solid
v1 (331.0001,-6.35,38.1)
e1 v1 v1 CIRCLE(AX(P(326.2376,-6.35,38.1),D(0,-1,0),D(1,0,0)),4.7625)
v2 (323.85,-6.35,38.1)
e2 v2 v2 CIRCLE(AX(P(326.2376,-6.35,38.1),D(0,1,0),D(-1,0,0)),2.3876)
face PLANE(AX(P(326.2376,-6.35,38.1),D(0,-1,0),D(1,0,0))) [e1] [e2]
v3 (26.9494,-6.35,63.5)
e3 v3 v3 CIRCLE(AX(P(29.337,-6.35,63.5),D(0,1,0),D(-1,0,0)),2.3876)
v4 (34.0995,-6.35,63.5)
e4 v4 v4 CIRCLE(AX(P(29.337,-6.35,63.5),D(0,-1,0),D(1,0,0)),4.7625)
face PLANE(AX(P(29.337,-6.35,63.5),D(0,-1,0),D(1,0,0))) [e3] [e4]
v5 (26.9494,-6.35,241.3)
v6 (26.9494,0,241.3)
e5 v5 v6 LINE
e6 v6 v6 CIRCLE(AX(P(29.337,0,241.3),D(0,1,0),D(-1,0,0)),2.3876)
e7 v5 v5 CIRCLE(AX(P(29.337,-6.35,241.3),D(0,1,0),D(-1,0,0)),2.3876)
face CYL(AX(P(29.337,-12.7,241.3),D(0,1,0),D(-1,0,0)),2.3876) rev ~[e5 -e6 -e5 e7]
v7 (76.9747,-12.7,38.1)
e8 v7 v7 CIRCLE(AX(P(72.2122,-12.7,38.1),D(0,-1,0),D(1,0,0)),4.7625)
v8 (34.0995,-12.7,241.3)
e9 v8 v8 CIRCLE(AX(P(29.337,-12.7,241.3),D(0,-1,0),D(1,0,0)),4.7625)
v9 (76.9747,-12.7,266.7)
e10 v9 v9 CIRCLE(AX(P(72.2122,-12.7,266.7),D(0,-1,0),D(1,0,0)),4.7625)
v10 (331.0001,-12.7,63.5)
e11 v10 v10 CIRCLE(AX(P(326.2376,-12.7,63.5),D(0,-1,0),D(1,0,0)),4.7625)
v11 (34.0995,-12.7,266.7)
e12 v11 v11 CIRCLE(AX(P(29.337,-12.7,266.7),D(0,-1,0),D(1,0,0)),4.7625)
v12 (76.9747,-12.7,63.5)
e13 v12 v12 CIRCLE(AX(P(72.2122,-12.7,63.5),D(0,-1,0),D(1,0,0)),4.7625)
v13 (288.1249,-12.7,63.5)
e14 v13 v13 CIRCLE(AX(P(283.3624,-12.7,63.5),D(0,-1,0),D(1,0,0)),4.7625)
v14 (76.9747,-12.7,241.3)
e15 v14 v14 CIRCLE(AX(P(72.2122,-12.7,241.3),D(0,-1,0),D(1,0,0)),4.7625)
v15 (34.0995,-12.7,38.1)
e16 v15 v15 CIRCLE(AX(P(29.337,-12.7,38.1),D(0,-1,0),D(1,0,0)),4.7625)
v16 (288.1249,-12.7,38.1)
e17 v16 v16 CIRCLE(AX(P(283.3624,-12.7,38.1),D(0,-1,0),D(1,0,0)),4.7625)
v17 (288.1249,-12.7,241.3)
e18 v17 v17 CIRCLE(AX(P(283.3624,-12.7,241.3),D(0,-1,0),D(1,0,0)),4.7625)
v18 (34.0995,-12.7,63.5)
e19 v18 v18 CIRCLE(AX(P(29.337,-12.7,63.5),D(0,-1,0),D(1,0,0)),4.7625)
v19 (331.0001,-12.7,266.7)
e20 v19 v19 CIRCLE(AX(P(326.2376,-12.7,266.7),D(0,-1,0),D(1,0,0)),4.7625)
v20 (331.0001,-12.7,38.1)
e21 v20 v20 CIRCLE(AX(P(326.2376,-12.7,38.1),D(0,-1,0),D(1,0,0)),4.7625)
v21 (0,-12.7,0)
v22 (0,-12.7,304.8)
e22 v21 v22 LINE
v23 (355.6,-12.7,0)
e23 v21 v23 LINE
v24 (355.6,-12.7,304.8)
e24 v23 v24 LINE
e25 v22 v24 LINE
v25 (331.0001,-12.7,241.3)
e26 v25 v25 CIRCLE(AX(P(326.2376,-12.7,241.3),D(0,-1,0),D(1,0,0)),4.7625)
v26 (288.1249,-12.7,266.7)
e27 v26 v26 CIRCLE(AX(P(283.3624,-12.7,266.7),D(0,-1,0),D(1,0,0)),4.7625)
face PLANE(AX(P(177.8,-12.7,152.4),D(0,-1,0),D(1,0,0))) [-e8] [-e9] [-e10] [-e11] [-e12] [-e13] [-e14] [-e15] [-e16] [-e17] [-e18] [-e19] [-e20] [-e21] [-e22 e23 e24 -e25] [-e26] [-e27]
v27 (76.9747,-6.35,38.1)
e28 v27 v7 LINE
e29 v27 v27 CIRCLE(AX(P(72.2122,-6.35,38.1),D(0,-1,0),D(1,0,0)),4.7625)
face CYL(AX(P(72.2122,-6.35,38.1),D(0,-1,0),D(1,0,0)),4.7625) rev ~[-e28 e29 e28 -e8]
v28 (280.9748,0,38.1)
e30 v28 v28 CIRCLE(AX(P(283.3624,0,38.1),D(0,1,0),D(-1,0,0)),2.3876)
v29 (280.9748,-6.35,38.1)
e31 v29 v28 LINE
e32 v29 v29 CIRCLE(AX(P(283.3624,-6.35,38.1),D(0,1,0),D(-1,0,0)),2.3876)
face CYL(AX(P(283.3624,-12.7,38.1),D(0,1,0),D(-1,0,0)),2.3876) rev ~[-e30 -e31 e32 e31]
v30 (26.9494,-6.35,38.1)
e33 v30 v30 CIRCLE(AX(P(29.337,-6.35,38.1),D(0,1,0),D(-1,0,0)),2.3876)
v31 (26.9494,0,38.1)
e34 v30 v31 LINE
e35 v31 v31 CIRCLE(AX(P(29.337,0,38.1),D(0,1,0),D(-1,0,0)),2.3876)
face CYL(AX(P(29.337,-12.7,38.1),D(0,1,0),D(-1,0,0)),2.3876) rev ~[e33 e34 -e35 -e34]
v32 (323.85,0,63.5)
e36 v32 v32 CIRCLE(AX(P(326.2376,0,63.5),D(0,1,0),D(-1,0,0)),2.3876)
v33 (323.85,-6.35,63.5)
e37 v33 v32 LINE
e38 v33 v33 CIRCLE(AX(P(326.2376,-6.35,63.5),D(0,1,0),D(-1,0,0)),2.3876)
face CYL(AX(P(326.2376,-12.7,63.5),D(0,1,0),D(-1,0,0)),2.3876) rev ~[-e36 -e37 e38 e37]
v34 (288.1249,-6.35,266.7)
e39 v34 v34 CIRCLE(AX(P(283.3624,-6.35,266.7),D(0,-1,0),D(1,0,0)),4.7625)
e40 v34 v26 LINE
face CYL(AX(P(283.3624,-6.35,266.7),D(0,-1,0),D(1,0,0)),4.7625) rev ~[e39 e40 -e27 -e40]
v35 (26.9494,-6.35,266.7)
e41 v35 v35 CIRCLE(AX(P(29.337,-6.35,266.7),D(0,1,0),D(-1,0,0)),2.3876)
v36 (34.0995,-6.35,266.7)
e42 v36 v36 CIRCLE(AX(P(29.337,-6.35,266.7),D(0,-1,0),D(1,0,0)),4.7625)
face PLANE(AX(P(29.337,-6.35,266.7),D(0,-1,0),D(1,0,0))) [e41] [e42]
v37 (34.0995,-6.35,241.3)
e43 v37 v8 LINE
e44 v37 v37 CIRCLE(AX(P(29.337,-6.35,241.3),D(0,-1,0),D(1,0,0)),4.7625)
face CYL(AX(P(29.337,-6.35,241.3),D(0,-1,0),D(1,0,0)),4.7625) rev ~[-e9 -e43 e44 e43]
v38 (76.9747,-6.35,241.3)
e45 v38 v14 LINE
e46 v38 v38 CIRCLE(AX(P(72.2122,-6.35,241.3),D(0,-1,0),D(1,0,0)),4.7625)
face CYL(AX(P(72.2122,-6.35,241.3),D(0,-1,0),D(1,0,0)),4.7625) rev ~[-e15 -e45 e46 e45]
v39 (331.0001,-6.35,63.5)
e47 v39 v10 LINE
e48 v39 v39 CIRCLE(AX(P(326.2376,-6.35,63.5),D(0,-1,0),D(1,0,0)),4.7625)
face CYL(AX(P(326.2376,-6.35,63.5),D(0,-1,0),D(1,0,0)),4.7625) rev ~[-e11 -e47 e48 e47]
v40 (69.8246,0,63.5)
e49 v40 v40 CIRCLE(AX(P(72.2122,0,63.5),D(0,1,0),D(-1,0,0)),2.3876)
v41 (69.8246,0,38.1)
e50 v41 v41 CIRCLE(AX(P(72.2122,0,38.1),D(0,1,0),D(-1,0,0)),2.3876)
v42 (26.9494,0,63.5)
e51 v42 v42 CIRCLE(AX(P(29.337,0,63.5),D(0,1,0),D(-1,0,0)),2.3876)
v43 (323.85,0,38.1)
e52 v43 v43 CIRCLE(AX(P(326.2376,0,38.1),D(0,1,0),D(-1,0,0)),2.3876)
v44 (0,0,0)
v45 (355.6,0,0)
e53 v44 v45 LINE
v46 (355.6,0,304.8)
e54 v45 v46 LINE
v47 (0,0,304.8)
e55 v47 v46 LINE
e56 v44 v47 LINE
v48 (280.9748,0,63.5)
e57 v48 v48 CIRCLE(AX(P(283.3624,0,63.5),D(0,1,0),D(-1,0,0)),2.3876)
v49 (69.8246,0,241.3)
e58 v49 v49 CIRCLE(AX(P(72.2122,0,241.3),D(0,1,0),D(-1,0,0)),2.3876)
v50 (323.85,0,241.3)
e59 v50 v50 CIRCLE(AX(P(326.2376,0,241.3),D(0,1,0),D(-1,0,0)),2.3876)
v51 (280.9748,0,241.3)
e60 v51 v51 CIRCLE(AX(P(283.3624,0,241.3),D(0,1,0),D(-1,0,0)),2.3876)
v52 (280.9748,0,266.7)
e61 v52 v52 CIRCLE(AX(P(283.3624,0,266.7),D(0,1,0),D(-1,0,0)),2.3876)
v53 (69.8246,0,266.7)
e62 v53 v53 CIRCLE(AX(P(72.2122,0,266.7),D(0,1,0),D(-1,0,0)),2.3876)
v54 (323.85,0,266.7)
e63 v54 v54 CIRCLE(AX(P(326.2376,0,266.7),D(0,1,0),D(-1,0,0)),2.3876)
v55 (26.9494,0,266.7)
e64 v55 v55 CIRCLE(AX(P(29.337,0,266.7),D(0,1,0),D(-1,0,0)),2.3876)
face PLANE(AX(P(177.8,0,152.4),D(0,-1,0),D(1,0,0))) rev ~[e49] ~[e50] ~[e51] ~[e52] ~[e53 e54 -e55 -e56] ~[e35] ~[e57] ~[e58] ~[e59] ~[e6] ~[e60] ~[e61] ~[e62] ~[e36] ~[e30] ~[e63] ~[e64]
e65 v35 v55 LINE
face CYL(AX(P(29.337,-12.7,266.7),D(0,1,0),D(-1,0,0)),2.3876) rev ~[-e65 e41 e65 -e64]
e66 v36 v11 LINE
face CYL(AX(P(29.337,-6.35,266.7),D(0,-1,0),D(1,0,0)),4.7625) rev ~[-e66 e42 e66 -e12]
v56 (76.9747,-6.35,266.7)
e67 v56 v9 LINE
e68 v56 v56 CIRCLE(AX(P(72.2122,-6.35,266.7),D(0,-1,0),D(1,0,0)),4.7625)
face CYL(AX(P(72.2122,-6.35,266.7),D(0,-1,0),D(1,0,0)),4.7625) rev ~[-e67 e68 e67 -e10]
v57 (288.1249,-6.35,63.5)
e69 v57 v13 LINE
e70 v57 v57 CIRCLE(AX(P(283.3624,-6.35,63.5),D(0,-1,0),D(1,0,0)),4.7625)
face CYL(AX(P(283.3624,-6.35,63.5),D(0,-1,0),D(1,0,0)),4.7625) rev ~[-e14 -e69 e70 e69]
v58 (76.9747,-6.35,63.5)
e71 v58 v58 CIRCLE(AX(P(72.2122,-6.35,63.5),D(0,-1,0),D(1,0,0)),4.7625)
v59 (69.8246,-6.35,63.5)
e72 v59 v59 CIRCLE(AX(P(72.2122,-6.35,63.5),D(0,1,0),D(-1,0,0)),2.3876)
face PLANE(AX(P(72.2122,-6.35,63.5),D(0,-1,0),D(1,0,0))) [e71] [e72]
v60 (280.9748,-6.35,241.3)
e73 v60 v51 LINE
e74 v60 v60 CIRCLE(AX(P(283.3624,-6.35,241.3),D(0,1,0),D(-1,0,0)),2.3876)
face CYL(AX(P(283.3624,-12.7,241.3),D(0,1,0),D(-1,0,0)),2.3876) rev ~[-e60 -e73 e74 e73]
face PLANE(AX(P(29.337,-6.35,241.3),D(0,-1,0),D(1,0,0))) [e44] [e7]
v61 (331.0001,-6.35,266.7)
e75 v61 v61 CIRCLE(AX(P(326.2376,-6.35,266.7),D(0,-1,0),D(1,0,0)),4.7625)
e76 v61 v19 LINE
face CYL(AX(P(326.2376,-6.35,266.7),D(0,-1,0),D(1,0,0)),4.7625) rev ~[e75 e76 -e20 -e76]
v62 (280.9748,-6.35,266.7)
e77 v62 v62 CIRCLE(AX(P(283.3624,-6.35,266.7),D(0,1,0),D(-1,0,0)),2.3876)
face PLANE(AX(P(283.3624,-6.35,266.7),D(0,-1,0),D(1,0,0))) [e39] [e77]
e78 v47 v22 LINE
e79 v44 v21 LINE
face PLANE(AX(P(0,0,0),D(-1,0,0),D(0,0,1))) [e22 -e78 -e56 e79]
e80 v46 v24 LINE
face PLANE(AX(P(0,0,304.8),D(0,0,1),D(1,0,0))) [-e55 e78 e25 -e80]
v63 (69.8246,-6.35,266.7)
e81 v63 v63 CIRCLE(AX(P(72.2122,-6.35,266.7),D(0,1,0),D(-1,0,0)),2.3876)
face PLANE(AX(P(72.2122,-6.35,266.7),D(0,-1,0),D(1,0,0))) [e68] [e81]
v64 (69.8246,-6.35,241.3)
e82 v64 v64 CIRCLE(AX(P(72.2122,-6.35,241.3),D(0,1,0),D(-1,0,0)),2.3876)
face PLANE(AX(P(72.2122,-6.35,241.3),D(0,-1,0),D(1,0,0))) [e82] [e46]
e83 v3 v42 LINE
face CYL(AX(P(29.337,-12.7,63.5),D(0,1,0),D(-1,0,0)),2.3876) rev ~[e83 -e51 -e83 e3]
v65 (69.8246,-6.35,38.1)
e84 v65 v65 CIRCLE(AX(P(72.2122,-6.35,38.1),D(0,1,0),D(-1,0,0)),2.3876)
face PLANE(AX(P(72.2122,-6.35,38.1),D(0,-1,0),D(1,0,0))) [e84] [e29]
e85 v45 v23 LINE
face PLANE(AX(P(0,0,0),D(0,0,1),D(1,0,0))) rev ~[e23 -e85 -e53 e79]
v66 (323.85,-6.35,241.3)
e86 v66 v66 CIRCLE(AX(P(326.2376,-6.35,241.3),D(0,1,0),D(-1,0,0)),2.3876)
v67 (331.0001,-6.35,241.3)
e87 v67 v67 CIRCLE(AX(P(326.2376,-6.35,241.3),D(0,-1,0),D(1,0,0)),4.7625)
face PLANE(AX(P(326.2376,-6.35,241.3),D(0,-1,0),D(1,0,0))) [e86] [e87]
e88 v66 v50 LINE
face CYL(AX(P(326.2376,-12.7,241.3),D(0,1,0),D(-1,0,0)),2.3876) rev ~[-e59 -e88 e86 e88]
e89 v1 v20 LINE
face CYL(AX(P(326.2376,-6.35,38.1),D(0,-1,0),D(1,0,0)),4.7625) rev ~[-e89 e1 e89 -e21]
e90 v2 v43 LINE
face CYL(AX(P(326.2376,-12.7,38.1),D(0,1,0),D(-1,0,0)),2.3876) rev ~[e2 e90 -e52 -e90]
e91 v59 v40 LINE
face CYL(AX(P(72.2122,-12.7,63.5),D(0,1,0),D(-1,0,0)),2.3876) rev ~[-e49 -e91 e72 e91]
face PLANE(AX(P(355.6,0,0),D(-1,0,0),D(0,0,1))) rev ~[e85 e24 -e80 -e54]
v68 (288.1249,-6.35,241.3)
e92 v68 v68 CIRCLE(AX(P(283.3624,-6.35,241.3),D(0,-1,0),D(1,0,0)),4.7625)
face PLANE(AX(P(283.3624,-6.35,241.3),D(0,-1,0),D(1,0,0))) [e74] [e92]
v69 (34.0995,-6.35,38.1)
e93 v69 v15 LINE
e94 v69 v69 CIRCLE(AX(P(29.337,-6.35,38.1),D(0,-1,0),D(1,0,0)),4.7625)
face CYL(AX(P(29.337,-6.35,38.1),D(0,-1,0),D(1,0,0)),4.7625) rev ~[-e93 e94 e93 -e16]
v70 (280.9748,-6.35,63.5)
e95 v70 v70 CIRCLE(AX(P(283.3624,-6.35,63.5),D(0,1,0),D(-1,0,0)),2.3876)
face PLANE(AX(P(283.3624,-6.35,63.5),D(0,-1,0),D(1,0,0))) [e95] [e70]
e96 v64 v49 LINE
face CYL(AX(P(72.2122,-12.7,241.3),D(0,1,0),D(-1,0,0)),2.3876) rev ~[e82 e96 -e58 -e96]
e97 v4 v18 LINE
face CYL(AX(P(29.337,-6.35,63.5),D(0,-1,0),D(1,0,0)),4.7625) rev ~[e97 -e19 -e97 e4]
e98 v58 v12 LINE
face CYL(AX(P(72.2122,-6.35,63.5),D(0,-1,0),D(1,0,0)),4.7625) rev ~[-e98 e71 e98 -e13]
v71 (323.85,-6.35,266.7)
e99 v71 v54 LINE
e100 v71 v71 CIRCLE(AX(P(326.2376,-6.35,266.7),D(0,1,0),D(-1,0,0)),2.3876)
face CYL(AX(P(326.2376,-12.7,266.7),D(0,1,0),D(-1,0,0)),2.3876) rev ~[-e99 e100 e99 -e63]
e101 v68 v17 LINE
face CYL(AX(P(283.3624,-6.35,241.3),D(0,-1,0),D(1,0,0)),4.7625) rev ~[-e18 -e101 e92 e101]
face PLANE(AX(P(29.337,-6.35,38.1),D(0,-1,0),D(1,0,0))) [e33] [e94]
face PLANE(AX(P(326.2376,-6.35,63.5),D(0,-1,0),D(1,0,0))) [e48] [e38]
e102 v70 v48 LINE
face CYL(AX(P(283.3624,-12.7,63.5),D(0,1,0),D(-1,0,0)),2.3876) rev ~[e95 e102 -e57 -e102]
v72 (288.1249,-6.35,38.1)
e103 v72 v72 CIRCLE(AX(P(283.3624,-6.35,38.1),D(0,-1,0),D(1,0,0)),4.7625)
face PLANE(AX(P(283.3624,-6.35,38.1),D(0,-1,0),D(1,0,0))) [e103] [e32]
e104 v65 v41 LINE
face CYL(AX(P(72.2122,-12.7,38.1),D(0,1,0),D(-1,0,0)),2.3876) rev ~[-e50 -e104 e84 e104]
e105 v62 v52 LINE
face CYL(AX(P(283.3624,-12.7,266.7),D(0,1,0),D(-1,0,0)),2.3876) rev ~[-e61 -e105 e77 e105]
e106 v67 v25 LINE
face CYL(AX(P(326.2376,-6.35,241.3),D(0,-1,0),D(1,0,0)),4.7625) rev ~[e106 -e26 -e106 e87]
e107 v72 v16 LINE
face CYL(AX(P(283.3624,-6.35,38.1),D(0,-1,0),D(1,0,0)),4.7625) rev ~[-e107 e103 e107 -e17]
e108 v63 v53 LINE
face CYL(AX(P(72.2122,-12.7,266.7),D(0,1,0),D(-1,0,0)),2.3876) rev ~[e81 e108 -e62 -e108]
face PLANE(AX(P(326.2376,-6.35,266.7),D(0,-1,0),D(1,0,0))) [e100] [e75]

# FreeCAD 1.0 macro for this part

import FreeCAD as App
import Part
import Sketcher
Q = App.Units.Quantity


def add_polygon(sketch, points):
    """Adds a closed chain of lines whose ends are joined by coincident constraints."""
    first, n = sketch.GeometryCount, len(points)
    for a, b in zip(points, points[1:] + points[:1]):
        sketch.addGeometry(Part.LineSegment(App.Vector(*a, 0), App.Vector(*b, 0)), False)
    for i in range(n):
        sketch.addConstraint(Sketcher.Constraint("Coincident", first + i, 2, first + (i + 1) % n, 1))

doc = App.newDocument("Part")
body = doc.addObject("PartDesign::Body", "Body")

sketch1 = body.newObject("Sketcher::SketchObject", "Sketch")
sketch1.AttachmentSupport = (doc.getObject("XZ_Plane"), [""])
sketch1.MapMode = "FlatFace"
add_polygon(sketch1, [(0, 304.8), (0, 0), (355.6, 0), (355.6, 304.8)])
sketch1.addConstraint(Sketcher.Constraint("Vertical", 0))
sketch1.addConstraint(Sketcher.Constraint("Horizontal", 1))
sketch1.addConstraint(Sketcher.Constraint("Vertical", 2))
sketch1.addConstraint(Sketcher.Constraint("Horizontal", 3))
sketch1.addConstraint(Sketcher.Constraint("Coincident", 0, 2, -1, 1))
sketch1.addConstraint(Sketcher.Constraint("DistanceX", 1, 1, 1, 2, Q("14 in")))
sketch1.addConstraint(Sketcher.Constraint("DistanceY", 0, 2, 0, 1, Q("12 in")))
pad1 = body.newObject("PartDesign::Pad", "Pad")
pad1.Profile = sketch1
pad1.Length = Q("0.5 in")

sketch2 = body.newObject("Sketcher::SketchObject", "Sketch001")
sketch2.AttachmentSupport = (doc.getObject("XZ_Plane"), [""])
sketch2.MapMode = "FlatFace"
sketch2.AttachmentOffset = App.Placement(App.Vector(0, 0, 0.5 * 25.4), App.Rotation())
sketch2.addGeometry(Part.Circle(App.Vector(72.2122, 266.7, 0), App.Vector(0, 0, 1), 2.3876), False)
sketch2.addGeometry(Part.Circle(App.Vector(72.2122, 241.3, 0), App.Vector(0, 0, 1), 2.3876), False)
sketch2.addGeometry(Part.Circle(App.Vector(29.337, 241.3, 0), App.Vector(0, 0, 1), 2.3876), False)
sketch2.addGeometry(Part.Circle(App.Vector(283.3624, 266.7, 0), App.Vector(0, 0, 1), 2.3876), False)
sketch2.addGeometry(Part.Circle(App.Vector(283.3624, 241.3, 0), App.Vector(0, 0, 1), 2.3876), False)
sketch2.addGeometry(Part.Circle(App.Vector(326.2376, 241.3, 0), App.Vector(0, 0, 1), 2.3876), False)
sketch2.addGeometry(Part.Circle(App.Vector(326.2376, 266.7, 0), App.Vector(0, 0, 1), 2.3876), False)
sketch2.addGeometry(Part.Circle(App.Vector(283.3624, 63.5, 0), App.Vector(0, 0, 1), 2.3876), False)
sketch2.addGeometry(Part.Circle(App.Vector(326.2376, 38.1, 0), App.Vector(0, 0, 1), 2.3876), False)
sketch2.addGeometry(Part.Circle(App.Vector(326.2376, 63.5, 0), App.Vector(0, 0, 1), 2.3876), False)
sketch2.addGeometry(Part.Circle(App.Vector(283.3624, 38.1, 0), App.Vector(0, 0, 1), 2.3876), False)
sketch2.addGeometry(Part.Circle(App.Vector(72.2122, 63.5, 0), App.Vector(0, 0, 1), 2.3876), False)
sketch2.addGeometry(Part.Circle(App.Vector(72.2122, 38.1, 0), App.Vector(0, 0, 1), 2.3876), False)
sketch2.addGeometry(Part.Circle(App.Vector(29.337, 38.1, 0), App.Vector(0, 0, 1), 2.3876), False)
sketch2.addGeometry(Part.Circle(App.Vector(29.337, 63.5, 0), App.Vector(0, 0, 1), 2.3876), False)
sketch2.addGeometry(Part.Circle(App.Vector(29.337, 266.7, 0), App.Vector(0, 0, 1), 2.3876), False)
sketch2.addConstraint(Sketcher.Constraint("Equal", 0, 1))
sketch2.addConstraint(Sketcher.Constraint("Equal", 1, 2))
sketch2.addConstraint(Sketcher.Constraint("Equal", 2, 3))
sketch2.addConstraint(Sketcher.Constraint("Equal", 3, 4))
sketch2.addConstraint(Sketcher.Constraint("Equal", 4, 5))
sketch2.addConstraint(Sketcher.Constraint("Equal", 5, 6))
sketch2.addConstraint(Sketcher.Constraint("Equal", 6, 7))
sketch2.addConstraint(Sketcher.Constraint("Equal", 7, 8))
sketch2.addConstraint(Sketcher.Constraint("Equal", 8, 9))
sketch2.addConstraint(Sketcher.Constraint("Equal", 9, 10))
sketch2.addConstraint(Sketcher.Constraint("Equal", 10, 11))
sketch2.addConstraint(Sketcher.Constraint("Equal", 11, 12))
sketch2.addConstraint(Sketcher.Constraint("Equal", 12, 13))
sketch2.addConstraint(Sketcher.Constraint("Equal", 13, 14))
sketch2.addConstraint(Sketcher.Constraint("Equal", 14, 15))
sketch2.addConstraint(Sketcher.Constraint("Horizontal", 1, 3, 2, 3))
sketch2.addConstraint(Sketcher.Constraint("Horizontal", 0, 3, 3, 3))
sketch2.addConstraint(Sketcher.Constraint("Horizontal", 2, 3, 4, 3))
sketch2.addConstraint(Sketcher.Constraint("Horizontal", 4, 3, 5, 3))
sketch2.addConstraint(Sketcher.Constraint("Horizontal", 3, 3, 6, 3))
sketch2.addConstraint(Sketcher.Constraint("Horizontal", 7, 3, 9, 3))
sketch2.addConstraint(Sketcher.Constraint("Horizontal", 8, 3, 10, 3))
sketch2.addConstraint(Sketcher.Constraint("Horizontal", 9, 3, 11, 3))
sketch2.addConstraint(Sketcher.Constraint("Horizontal", 10, 3, 12, 3))
sketch2.addConstraint(Sketcher.Constraint("Horizontal", 12, 3, 13, 3))
sketch2.addConstraint(Sketcher.Constraint("Horizontal", 11, 3, 14, 3))
sketch2.addConstraint(Sketcher.Constraint("Horizontal", 6, 3, 15, 3))
sketch2.addConstraint(Sketcher.Constraint("Vertical", 0, 3, 1, 3))
sketch2.addConstraint(Sketcher.Constraint("Vertical", 3, 3, 4, 3))
sketch2.addConstraint(Sketcher.Constraint("Vertical", 5, 3, 6, 3))
sketch2.addConstraint(Sketcher.Constraint("Vertical", 4, 3, 7, 3))
sketch2.addConstraint(Sketcher.Constraint("Vertical", 6, 3, 8, 3))
sketch2.addConstraint(Sketcher.Constraint("Vertical", 8, 3, 9, 3))
sketch2.addConstraint(Sketcher.Constraint("Vertical", 7, 3, 10, 3))
sketch2.addConstraint(Sketcher.Constraint("Vertical", 1, 3, 11, 3))
sketch2.addConstraint(Sketcher.Constraint("Vertical", 11, 3, 12, 3))
sketch2.addConstraint(Sketcher.Constraint("Vertical", 2, 3, 13, 3))
sketch2.addConstraint(Sketcher.Constraint("Vertical", 13, 3, 14, 3))
sketch2.addConstraint(Sketcher.Constraint("Vertical", 14, 3, 15, 3))
sketch2.addConstraint(Sketcher.Constraint("Diameter", 0, Q("0.188 in")))
sketch2.addConstraint(Sketcher.Constraint("DistanceY", 1, 3, 0, 3, Q("1 in")))
sketch2.addConstraint(Sketcher.Constraint("DistanceY", 7, 3, 4, 3, Q("7 in")))
sketch2.addConstraint(Sketcher.Constraint("DistanceY", 8, 3, 7, 3, Q("1 in")))
sketch2.addConstraint(Sketcher.Constraint("DistanceY", -1, 1, 0, 3, Q("10.5 in")))
sketch2.addConstraint(Sketcher.Constraint("DistanceX", -1, 1, 0, 3, Q("2.843 in")))
sketch2.addConstraint(Sketcher.Constraint("DistanceX", -1, 1, 2, 3, Q("1.155 in")))
sketch2.addConstraint(Sketcher.Constraint("DistanceX", -1, 1, 3, 3, Q("11.156 in")))
sketch2.addConstraint(Sketcher.Constraint("DistanceX", -1, 1, 5, 3, Q("12.844 in")))
doc.recompute()
hole = body.newObject("PartDesign::Hole", "Hole")
hole.Profile = sketch2
hole.ThreadType = "None"
hole.Diameter = Q("0.188 in")
hole.DepthType = "ThroughAll"
hole.HoleCutType = "Counterbore"
hole.HoleCutDiameter = Q("0.375 in")
hole.HoleCutDepth = Q("0.25 in")

doc.recompute()
